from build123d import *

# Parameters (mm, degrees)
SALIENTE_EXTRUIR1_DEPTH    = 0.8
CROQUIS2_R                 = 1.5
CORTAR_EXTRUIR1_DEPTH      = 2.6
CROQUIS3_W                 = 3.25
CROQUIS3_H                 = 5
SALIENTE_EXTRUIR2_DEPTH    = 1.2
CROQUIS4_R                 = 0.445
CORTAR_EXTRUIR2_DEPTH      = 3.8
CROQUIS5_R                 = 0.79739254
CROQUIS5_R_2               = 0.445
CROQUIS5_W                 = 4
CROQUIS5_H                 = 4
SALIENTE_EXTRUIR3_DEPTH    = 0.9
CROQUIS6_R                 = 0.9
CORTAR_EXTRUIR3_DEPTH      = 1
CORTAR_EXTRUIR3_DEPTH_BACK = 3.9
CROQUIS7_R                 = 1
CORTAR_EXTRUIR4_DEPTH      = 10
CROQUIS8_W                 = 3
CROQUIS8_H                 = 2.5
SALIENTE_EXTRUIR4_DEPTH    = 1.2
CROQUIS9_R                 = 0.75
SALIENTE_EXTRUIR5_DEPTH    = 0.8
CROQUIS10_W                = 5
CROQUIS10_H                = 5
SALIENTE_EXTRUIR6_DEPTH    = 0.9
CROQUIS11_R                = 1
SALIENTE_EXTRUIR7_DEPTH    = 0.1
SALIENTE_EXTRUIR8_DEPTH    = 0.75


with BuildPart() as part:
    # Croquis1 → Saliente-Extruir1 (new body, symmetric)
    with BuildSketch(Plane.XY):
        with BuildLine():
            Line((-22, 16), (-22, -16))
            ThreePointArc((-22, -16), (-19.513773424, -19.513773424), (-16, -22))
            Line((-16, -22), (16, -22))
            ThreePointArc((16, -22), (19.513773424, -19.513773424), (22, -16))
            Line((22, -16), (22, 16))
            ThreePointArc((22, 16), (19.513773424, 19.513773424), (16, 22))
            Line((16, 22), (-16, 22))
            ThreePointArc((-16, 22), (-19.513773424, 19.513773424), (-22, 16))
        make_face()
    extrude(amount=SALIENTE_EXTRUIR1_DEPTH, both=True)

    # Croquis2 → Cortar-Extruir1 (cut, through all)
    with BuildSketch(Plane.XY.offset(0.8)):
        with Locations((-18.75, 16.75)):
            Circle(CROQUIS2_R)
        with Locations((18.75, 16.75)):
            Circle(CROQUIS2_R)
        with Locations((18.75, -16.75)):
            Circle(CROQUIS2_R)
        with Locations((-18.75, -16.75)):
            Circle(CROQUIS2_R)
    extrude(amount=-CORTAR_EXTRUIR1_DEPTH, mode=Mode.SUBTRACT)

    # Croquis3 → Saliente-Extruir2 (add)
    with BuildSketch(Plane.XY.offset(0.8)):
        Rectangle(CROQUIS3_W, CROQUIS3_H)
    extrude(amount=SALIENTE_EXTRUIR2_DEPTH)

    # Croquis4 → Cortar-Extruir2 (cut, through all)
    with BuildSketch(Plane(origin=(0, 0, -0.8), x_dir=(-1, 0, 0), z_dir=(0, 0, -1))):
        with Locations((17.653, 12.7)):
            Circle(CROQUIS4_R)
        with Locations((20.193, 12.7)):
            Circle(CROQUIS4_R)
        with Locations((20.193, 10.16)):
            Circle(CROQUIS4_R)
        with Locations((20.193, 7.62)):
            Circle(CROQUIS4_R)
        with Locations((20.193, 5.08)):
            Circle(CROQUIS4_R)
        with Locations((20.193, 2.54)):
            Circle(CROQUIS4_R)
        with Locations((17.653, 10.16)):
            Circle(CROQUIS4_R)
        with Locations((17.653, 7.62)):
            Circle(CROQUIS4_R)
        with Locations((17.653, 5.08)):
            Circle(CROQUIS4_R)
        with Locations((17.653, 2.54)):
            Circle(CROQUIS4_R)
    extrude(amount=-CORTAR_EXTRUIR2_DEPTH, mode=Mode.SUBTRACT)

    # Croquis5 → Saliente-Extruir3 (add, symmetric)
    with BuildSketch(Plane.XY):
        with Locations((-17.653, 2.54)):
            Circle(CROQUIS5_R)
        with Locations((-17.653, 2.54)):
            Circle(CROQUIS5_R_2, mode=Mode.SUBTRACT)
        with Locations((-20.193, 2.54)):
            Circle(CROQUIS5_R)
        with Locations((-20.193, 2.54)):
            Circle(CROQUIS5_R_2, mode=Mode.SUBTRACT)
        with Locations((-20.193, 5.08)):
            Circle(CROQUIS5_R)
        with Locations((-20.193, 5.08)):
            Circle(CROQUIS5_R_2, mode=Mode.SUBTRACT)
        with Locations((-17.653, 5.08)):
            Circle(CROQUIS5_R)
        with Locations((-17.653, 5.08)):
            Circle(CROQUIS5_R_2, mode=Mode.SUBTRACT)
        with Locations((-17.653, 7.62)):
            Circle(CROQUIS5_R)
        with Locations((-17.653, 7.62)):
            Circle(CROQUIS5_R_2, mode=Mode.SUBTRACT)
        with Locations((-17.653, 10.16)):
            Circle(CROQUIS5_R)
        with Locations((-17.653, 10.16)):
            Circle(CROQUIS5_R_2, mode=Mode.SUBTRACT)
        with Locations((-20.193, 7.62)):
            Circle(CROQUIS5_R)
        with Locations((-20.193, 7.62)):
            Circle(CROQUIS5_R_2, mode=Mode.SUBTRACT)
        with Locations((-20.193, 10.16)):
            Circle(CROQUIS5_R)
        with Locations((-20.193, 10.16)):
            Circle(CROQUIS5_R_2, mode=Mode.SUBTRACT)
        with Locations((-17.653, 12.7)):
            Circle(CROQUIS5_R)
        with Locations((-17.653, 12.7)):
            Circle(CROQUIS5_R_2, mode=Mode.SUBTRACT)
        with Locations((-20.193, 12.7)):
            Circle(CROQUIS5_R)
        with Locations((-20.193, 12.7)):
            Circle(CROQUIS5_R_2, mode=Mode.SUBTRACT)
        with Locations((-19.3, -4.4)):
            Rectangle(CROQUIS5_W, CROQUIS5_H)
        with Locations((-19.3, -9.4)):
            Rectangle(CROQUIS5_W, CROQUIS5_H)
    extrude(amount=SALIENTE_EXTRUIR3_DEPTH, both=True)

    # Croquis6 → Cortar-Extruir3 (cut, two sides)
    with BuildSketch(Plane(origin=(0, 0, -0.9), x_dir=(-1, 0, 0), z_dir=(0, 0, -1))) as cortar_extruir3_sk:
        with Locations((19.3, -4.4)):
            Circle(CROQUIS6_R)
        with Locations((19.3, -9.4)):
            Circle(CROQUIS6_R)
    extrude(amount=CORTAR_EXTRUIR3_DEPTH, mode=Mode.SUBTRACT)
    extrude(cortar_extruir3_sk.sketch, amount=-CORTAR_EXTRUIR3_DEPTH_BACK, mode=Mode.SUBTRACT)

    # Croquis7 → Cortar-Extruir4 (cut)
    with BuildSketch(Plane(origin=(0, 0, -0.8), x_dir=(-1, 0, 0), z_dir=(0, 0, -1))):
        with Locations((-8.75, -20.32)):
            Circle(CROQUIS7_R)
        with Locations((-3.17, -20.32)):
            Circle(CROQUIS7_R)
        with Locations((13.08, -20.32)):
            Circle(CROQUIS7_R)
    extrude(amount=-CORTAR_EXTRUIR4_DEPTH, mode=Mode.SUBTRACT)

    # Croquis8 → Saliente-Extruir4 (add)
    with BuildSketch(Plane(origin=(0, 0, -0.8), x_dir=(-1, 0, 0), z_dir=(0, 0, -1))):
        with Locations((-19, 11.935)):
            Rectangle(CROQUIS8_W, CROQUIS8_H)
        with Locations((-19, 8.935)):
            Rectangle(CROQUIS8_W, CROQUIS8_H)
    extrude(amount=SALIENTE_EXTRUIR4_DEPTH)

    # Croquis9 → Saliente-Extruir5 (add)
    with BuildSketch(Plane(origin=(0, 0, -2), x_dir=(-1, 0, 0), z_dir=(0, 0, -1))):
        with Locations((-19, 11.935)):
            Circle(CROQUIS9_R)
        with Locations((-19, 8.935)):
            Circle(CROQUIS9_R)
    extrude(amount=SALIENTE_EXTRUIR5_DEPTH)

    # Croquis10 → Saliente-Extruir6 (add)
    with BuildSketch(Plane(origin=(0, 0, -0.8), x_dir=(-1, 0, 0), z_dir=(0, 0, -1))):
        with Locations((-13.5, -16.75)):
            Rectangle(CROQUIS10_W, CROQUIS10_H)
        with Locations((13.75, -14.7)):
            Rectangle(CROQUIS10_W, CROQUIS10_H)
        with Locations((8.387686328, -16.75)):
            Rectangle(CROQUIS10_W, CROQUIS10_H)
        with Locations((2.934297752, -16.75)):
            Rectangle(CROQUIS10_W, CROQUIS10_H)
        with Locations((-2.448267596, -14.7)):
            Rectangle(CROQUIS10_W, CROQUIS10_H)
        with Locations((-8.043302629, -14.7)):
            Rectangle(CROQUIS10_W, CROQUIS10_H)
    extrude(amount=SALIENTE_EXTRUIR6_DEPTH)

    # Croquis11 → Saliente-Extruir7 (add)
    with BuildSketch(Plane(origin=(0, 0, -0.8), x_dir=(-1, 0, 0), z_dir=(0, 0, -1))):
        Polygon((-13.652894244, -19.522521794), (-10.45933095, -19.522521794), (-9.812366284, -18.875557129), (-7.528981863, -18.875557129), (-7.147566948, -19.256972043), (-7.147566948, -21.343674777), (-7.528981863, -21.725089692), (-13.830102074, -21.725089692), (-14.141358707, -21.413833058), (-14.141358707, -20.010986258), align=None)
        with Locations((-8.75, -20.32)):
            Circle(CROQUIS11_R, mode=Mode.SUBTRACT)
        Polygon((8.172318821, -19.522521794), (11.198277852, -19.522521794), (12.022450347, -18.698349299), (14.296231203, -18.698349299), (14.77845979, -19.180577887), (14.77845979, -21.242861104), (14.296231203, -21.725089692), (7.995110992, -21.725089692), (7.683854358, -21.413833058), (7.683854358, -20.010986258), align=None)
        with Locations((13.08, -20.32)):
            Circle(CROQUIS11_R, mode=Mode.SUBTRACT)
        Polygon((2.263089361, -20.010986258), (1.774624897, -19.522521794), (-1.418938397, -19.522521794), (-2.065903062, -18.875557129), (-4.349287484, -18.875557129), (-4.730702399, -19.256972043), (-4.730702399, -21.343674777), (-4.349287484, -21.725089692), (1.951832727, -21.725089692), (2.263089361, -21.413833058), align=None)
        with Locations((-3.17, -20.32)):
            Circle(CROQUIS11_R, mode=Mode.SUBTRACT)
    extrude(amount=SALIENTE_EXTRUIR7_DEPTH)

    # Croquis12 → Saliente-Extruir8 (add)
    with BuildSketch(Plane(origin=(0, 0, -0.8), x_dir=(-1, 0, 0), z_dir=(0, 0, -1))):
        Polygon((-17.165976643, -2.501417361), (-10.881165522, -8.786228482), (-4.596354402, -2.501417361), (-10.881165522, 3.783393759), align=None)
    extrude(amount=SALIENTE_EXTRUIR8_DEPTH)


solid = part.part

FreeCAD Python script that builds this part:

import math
import FreeCAD as App
import Part
import Sketcher
from FreeCAD import Vector

doc = App.newDocument("Part")
params = doc.addObject("Spreadsheet::Sheet", "Params")
for row, (alias, value) in enumerate([
    ("sketch1_width", "32 mm"),
    ("sketch1_radius", "12.75 mm"),
    ("pad1_length", "1.6 mm"),
    ("sketch2_diameter", "3 mm"),
    ("sketch3_height", "5 mm"),
    ("sketch3_width", "3.25 mm"),
    ("pad2_length", "1.2 mm"),
    ("sketch4_diameter", "0.89 mm"),
    ("sketch5_diameter", "0.89 mm"),
    ("sketch5_width", "4 mm"),
    ("pad3_length", "1.8 mm"),
    ("sketch6_diameter", "1.8 mm"),
    ("sketch7_diameter", "2 mm"),
    ("pocket4_length", "10 mm"),
    ("sketch8_width", "3 mm"),
    ("sketch8_height", "2.5 mm"),
    ("pad4_length", "1.2 mm"),
    ("sketch9_diameter", "1.5 mm"),
    ("pad5_length", "0.8 mm"),
    ("sketch10_width", "5 mm"),
    ("pad6_length", "0.9 mm"),
    ("sketch11_diameter", "2 mm"),
    ("pad7_length", "0.1 mm"),
    ("pad8_length", "0.75 mm"),
], start=1):
    params.set(f"A{row}", alias)
    params.set(f"B{row}", "=" + value)
    params.setAlias(f"B{row}", alias)

body = doc.addObject("PartDesign::Body", "Body")

sketch1 = body.newObject("Sketcher::SketchObject", "Sketch")
sketch1.AttachmentSupport = (doc.getObject("XY_Plane"), [""])
sketch1.MapMode = "FlatFace"
sketch1.addGeometry([
    Part.LineSegment(Vector(-22, 16, 0), Vector(-22, -16, 0)),
    Part.ArcOfCircle(Part.Circle(Vector(-10, -10, 0), Vector(0, 0, 1), 13), math.radians(-154), math.radians(-116)),
    Part.LineSegment(Vector(-16, -22, 0), Vector(16, -22, 0)),
    Part.ArcOfCircle(Part.Circle(Vector(10, -10, 0), Vector(0, 0, 1), 13), math.radians(-64), math.radians(-26)),
    Part.LineSegment(Vector(22, -16, 0), Vector(22, 16, 0)),
    Part.ArcOfCircle(Part.Circle(Vector(10, 10, 0), Vector(0, 0, 1), 13), math.radians(26), math.radians(64)),
    Part.LineSegment(Vector(16, 22, 0), Vector(-16, 22, 0)),
    Part.ArcOfCircle(Part.Circle(Vector(-10, 10, 0), Vector(0, 0, 1), 13), math.radians(116), math.radians(154)),
], False)
sketch1.addConstraint([
    Sketcher.Constraint("Coincident", 0, 2, 1, 1),
    Sketcher.Constraint("Coincident", 1, 2, 2, 1),
    Sketcher.Constraint("Coincident", 2, 2, 3, 1),
    Sketcher.Constraint("Coincident", 3, 2, 4, 1),
    Sketcher.Constraint("Coincident", 4, 2, 5, 1),
    Sketcher.Constraint("Coincident", 5, 2, 6, 1),
    Sketcher.Constraint("Coincident", 6, 2, 7, 1),
    Sketcher.Constraint("Coincident", 7, 2, 0, 1),
    Sketcher.Constraint("Vertical", 0),
    Sketcher.Constraint("Horizontal", 2),
    Sketcher.Constraint("Vertical", 4),
    Sketcher.Constraint("Horizontal", 6),
    Sketcher.Constraint("Equal", 1, 3),
    Sketcher.Constraint("Equal", 3, 5),
    Sketcher.Constraint("Equal", 5, 7),
    Sketcher.Constraint("Symmetric", 1, 3, 5, 3, -1, 1),
    Sketcher.Constraint("Symmetric", 3, 3, 7, 3, -1, 1),
    Sketcher.Constraint("Symmetric", 1, 3, 3, 3, -2),
    Sketcher.Constraint("Horizontal", 0, 2, 3, 2),
    Sketcher.Constraint("Vertical", 2, 2, 5, 2),
    Sketcher.Constraint("Equal", 6, 0),
    Sketcher.Constraint("DistanceX", 2, 1, 2, 2, 32.0),
    Sketcher.Constraint("Radius", 1, 12.75),
    Sketcher.Constraint("DistanceX", 0, 2, -1, 1, 22.0),
    Sketcher.Constraint("DistanceY", 1, 2, -1, 1, 22.0),
])
sketch1.setExpression("Constraints[21]", "Params.sketch1_width")
sketch1.setExpression("Constraints[22]", "Params.sketch1_radius")
pad1 = body.newObject("PartDesign::Pad", "Pad")
pad1.Profile = sketch1
pad1.setExpression("Length", "Params.pad1_length")
pad1.Midplane = True

sketch2 = body.newObject("Sketcher::SketchObject", "Sketch001")
sketch2.AttachmentSupport = (doc.getObject("XY_Plane"), [""])
sketch2.MapMode = "FlatFace"
sketch2.AttachmentOffset = App.Placement(Vector(0, 0, 0.8), App.Rotation())
sketch2.addGeometry([
    Part.Circle(Vector(-18.8, 16.8, 0), Vector(0, 0, 1), 1.5),
    Part.Circle(Vector(18.8, 16.8, 0), Vector(0, 0, 1), 1.5),
    Part.Circle(Vector(18.8, -16.8, 0), Vector(0, 0, 1), 1.5),
    Part.Circle(Vector(-18.8, -16.8, 0), Vector(0, 0, 1), 1.5),
], False)
sketch2.addConstraint([
    Sketcher.Constraint("Equal", 0, 1),
    Sketcher.Constraint("Equal", 1, 2),
    Sketcher.Constraint("Equal", 2, 3),
    Sketcher.Constraint("Symmetric", 0, 3, 2, 3, -1, 1),
    Sketcher.Constraint("Symmetric", 1, 3, 3, 3, -1, 1),
    Sketcher.Constraint("Symmetric", 0, 3, 1, 3, -2),
    Sketcher.Constraint("Diameter", 0, 3.0),
    Sketcher.Constraint("DistanceX", 0, 3, 1, 3, 37.5),
    Sketcher.Constraint("DistanceY", 2, 3, 1, 3, 33.5),
])
sketch2.setExpression("Constraints[6]", "Params.sketch2_diameter")
pocket1 = body.newObject("PartDesign::Pocket", "Pocket")
pocket1.Profile = sketch2
pocket1.Type = "ThroughAll"

sketch3 = body.newObject("Sketcher::SketchObject", "Sketch002")
sketch3.AttachmentSupport = (doc.getObject("XY_Plane"), [""])
sketch3.MapMode = "FlatFace"
sketch3.AttachmentOffset = App.Placement(Vector(0, 0, 0.8), App.Rotation())
sketch3.addGeometry([
    Part.LineSegment(Vector(-1.6, 2.5, 0), Vector(-1.6, -2.5, 0)),
    Part.LineSegment(Vector(-1.6, -2.5, 0), Vector(1.6, -2.5, 0)),
    Part.LineSegment(Vector(1.6, -2.5, 0), Vector(1.6, 2.5, 0)),
    Part.LineSegment(Vector(1.6, 2.5, 0), Vector(-1.6, 2.5, 0)),
], False)
sketch3.addConstraint([
    Sketcher.Constraint("Coincident", 0, 2, 1, 1),
    Sketcher.Constraint("Coincident", 1, 2, 2, 1),
    Sketcher.Constraint("Coincident", 2, 2, 3, 1),
    Sketcher.Constraint("Coincident", 3, 2, 0, 1),
    Sketcher.Constraint("Vertical", 0),
    Sketcher.Constraint("Horizontal", 1),
    Sketcher.Constraint("Vertical", 2),
    Sketcher.Constraint("Horizontal", 3),
    Sketcher.Constraint("Symmetric", 0, 2, 2, 2, -1, 1),
    Sketcher.Constraint("DistanceY", 0, 2, 0, 1, 5.0),
    Sketcher.Constraint("DistanceX", 1, 1, 1, 2, 3.25),
])
sketch3.setExpression("Constraints[9]", "Params.sketch3_height")
sketch3.setExpression("Constraints[10]", "Params.sketch3_width")
pad2 = body.newObject("PartDesign::Pad", "Pad001")
pad2.Profile = sketch3
pad2.setExpression("Length", "Params.pad2_length")

sketch4 = body.newObject("Sketcher::SketchObject", "Sketch003")
sketch4.AttachmentSupport = (doc.getObject("XY_Plane"), [""])
sketch4.MapMode = "FlatFace"
sketch4.AttachmentOffset = App.Placement(Vector(0, 0, -0.8), App.Rotation())
sketch4.addGeometry([
    Part.Circle(Vector(-17.65, 12.7, 0), Vector(0, 0, 1), 0.45),
    Part.Circle(Vector(-20.19, 12.7, 0), Vector(0, 0, 1), 0.45),
    Part.Circle(Vector(-20.19, 10.16, 0), Vector(0, 0, 1), 0.45),
    Part.Circle(Vector(-20.19, 7.62, 0), Vector(0, 0, 1), 0.45),
    Part.Circle(Vector(-20.19, 5.08, 0), Vector(0, 0, 1), 0.45),
    Part.Circle(Vector(-20.19, 2.54, 0), Vector(0, 0, 1), 0.45),
    Part.Circle(Vector(-17.65, 10.16, 0), Vector(0, 0, 1), 0.45),
    Part.Circle(Vector(-17.65, 7.62, 0), Vector(0, 0, 1), 0.45),
    Part.Circle(Vector(-17.65, 5.08, 0), Vector(0, 0, 1), 0.45),
    Part.Circle(Vector(-17.65, 2.54, 0), Vector(0, 0, 1), 0.45),
], False)
sketch4.addConstraint([
    Sketcher.Constraint("Equal", 0, 1),
    Sketcher.Constraint("Equal", 1, 2),
    Sketcher.Constraint("Equal", 2, 3),
    Sketcher.Constraint("Equal", 3, 4),
    Sketcher.Constraint("Equal", 4, 5),
    Sketcher.Constraint("Equal", 5, 6),
    Sketcher.Constraint("Equal", 6, 7),
    Sketcher.Constraint("Equal", 7, 8),
    Sketcher.Constraint("Equal", 8, 9),
    Sketcher.Constraint("Horizontal", 0, 3, 1, 3),
    Sketcher.Constraint("Horizontal", 2, 3, 6, 3),
    Sketcher.Constraint("Horizontal", 3, 3, 7, 3),
    Sketcher.Constraint("Horizontal", 4, 3, 8, 3),
    Sketcher.Constraint("Horizontal", 5, 3, 9, 3),
    Sketcher.Constraint("Vertical", 1, 3, 2, 3),
    Sketcher.Constraint("Vertical", 2, 3, 3, 3),
    Sketcher.Constraint("Vertical", 3, 3, 4, 3),
    Sketcher.Constraint("Vertical", 4, 3, 5, 3),
    Sketcher.Constraint("Vertical", 0, 3, 6, 3),
    Sketcher.Constraint("Vertical", 6, 3, 7, 3),
    Sketcher.Constraint("Vertical", 7, 3, 8, 3),
    Sketcher.Constraint("Vertical", 8, 3, 9, 3),
    Sketcher.Constraint("Diameter", 0, 0.89),
    Sketcher.Constraint("DistanceY", -1, 1, 0, 3, 12.7),
    Sketcher.Constraint("DistanceY", -1, 1, 2, 3, 10.16),
    Sketcher.Constraint("DistanceY", -1, 1, 3, 3, 7.62),
    Sketcher.Constraint("DistanceY", -1, 1, 4, 3, 5.08),
    Sketcher.Constraint("DistanceY", -1, 1, 5, 3, 2.54),
    Sketcher.Constraint("DistanceX", 1, 3, 0, 3, 2.54),
    Sketcher.Constraint("DistanceX", 0, 3, -1, 1, 17.653),
])
sketch4.setExpression("Constraints[22]", "Params.sketch4_diameter")
pocket2 = body.newObject("PartDesign::Pocket", "Pocket001")
pocket2.Profile = sketch4
pocket2.Type = "ThroughAll"
pocket2.Reversed = True

sketch5 = body.newObject("Sketcher::SketchObject", "Sketch004")
sketch5.AttachmentSupport = (doc.getObject("XY_Plane"), [""])
sketch5.MapMode = "FlatFace"
sketch5.addGeometry([
    Part.Circle(Vector(-17.65, 2.54, 0), Vector(0, 0, 1), 0.8),
    Part.Circle(Vector(-17.65, 2.54, 0), Vector(0, 0, 1), 0.45),
    Part.Circle(Vector(-20.19, 2.54, 0), Vector(0, 0, 1), 0.8),
    Part.Circle(Vector(-20.19, 2.54, 0), Vector(0, 0, 1), 0.45),
    Part.Circle(Vector(-20.19, 5.08, 0), Vector(0, 0, 1), 0.8),
    Part.Circle(Vector(-20.19, 5.08, 0), Vector(0, 0, 1), 0.45),
    Part.Circle(Vector(-17.65, 5.08, 0), Vector(0, 0, 1), 0.8),
    Part.Circle(Vector(-17.65, 5.08, 0), Vector(0, 0, 1), 0.45),
    Part.Circle(Vector(-17.65, 7.62, 0), Vector(0, 0, 1), 0.8),
    Part.Circle(Vector(-17.65, 7.62, 0), Vector(0, 0, 1), 0.45),
    Part.Circle(Vector(-17.65, 10.16, 0), Vector(0, 0, 1), 0.8),
    Part.Circle(Vector(-17.65, 10.16, 0), Vector(0, 0, 1), 0.45),
    Part.Circle(Vector(-20.19, 7.62, 0), Vector(0, 0, 1), 0.8),
    Part.Circle(Vector(-20.19, 7.62, 0), Vector(0, 0, 1), 0.45),
    Part.Circle(Vector(-20.19, 10.16, 0), Vector(0, 0, 1), 0.8),
    Part.Circle(Vector(-20.19, 10.16, 0), Vector(0, 0, 1), 0.45),
    Part.Circle(Vector(-17.65, 12.7, 0), Vector(0, 0, 1), 0.8),
    Part.Circle(Vector(-17.65, 12.7, 0), Vector(0, 0, 1), 0.45),
    Part.Circle(Vector(-20.19, 12.7, 0), Vector(0, 0, 1), 0.8),
    Part.Circle(Vector(-20.19, 12.7, 0), Vector(0, 0, 1), 0.45),
    Part.LineSegment(Vector(-21.3, -2.4, 0), Vector(-21.3, -6.4, 0)),
    Part.LineSegment(Vector(-21.3, -6.4, 0), Vector(-17.3, -6.4, 0)),
    Part.LineSegment(Vector(-17.3, -6.4, 0), Vector(-17.3, -2.4, 0)),
    Part.LineSegment(Vector(-17.3, -2.4, 0), Vector(-21.3, -2.4, 0)),
    Part.LineSegment(Vector(-21.3, -7.4, 0), Vector(-21.3, -11.4, 0)),
    Part.LineSegment(Vector(-21.3, -11.4, 0), Vector(-17.3, -11.4, 0)),
    Part.LineSegment(Vector(-17.3, -11.4, 0), Vector(-17.3, -7.4, 0)),
    Part.LineSegment(Vector(-17.3, -7.4, 0), Vector(-21.3, -7.4, 0)),
], False)
sketch5.addConstraint([
    Sketcher.Constraint("Coincident", 20, 2, 21, 1),
    Sketcher.Constraint("Coincident", 21, 2, 22, 1),
    Sketcher.Constraint("Coincident", 22, 2, 23, 1),
    Sketcher.Constraint("Coincident", 23, 2, 20, 1),
    Sketcher.Constraint("Coincident", 24, 2, 25, 1),
    Sketcher.Constraint("Coincident", 25, 2, 26, 1),
    Sketcher.Constraint("Coincident", 26, 2, 27, 1),
    Sketcher.Constraint("Coincident", 27, 2, 24, 1),
    Sketcher.Constraint("Vertical", 20),
    Sketcher.Constraint("Horizontal", 21),
    Sketcher.Constraint("Vertical", 22),
    Sketcher.Constraint("Horizontal", 23),
    Sketcher.Constraint("Vertical", 24),
    Sketcher.Constraint("Horizontal", 25),
    Sketcher.Constraint("Vertical", 26),
    Sketcher.Constraint("Horizontal", 27),
    Sketcher.Constraint("Coincident", 1, 3, 0, 3),
    Sketcher.Constraint("Coincident", 3, 3, 2, 3),
    Sketcher.Constraint("Coincident", 5, 3, 4, 3),
    Sketcher.Constraint("Coincident", 7, 3, 6, 3),
    Sketcher.Constraint("Coincident", 9, 3, 8, 3),
    Sketcher.Constraint("Coincident", 11, 3, 10, 3),
    Sketcher.Constraint("Coincident", 13, 3, 12, 3),
    Sketcher.Constraint("Coincident", 15, 3, 14, 3),
    Sketcher.Constraint("Coincident", 17, 3, 16, 3),
    Sketcher.Constraint("Coincident", 19, 3, 18, 3),
    Sketcher.Constraint("Equal", 0, 2),
    Sketcher.Constraint("Equal", 1, 3),
    Sketcher.Constraint("Equal", 2, 4),
    Sketcher.Constraint("Equal", 3, 5),
    Sketcher.Constraint("Equal", 4, 6),
    Sketcher.Constraint("Equal", 5, 7),
    Sketcher.Constraint("Equal", 6, 8),
    Sketcher.Constraint("Equal", 7, 9),
    Sketcher.Constraint("Equal", 8, 10),
    Sketcher.Constraint("Equal", 9, 11),
    Sketcher.Constraint("Equal", 10, 12),
    Sketcher.Constraint("Equal", 11, 13),
    Sketcher.Constraint("Equal", 12, 14),
    Sketcher.Constraint("Equal", 13, 15),
    Sketcher.Constraint("Equal", 14, 16),
    Sketcher.Constraint("Equal", 15, 17),
    Sketcher.Constraint("Equal", 16, 18),
    Sketcher.Constraint("Equal", 17, 19),
    Sketcher.Constraint("Horizontal", 1, 3, 2, 3),
    Sketcher.Constraint("Horizontal", 5, 3, 6, 3),
    Sketcher.Constraint("Horizontal", 9, 3, 12, 3),
    Sketcher.Constraint("Horizontal", 11, 3, 14, 3),
    Sketcher.Constraint("Horizontal", 17, 3, 18, 3),
    Sketcher.Constraint("Vertical", 3, 3, 4, 3),
    Sketcher.Constraint("Vertical", 1, 3, 6, 3),
    Sketcher.Constraint("Vertical", 7, 3, 8, 3),
    Sketcher.Constraint("Vertical", 9, 3, 10, 3),
    Sketcher.Constraint("Vertical", 5, 3, 12, 3),
    Sketcher.Constraint("Vertical", 13, 3, 14, 3),
    Sketcher.Constraint("Vertical", 11, 3, 16, 3),
    Sketcher.Constraint("Vertical", 15, 3, 18, 3),
    Sketcher.Constraint("Vertical", 23, 2, 24, 2),
    Sketcher.Constraint("Vertical", 22, 2, 25, 2),
    Sketcher.Constraint("Equal", 27, 20),
    Sketcher.Constraint("Equal", 22, 24),
    Sketcher.Constraint("Diameter", 1, 0.89),
    Sketcher.Constraint("DistanceX", 21, 1, 21, 2, 4.0),
    Sketcher.Constraint("DistanceY", 24, 2, 20, 2, 5.0),
    Sketcher.Constraint("DistanceY", -1, 1, 16, 3, 12.7),
    Sketcher.Constraint("DistanceX", 20, 2, -1, 1, 21.3),
    Sketcher.Constraint("DistanceY", 20, 2, -1, 1, 6.4),
    Sketcher.Constraint("DistanceY", -1, 1, 0, 3, 2.54),
    Sketcher.Constraint("DistanceY", -1, 1, 4, 3, 5.08),
    Sketcher.Constraint("DistanceY", -1, 1, 8, 3, 7.62),
    Sketcher.Constraint("DistanceY", -1, 1, 10, 3, 10.16),
    Sketcher.Constraint("DistanceX", 2, 3, 0, 3, 2.54),
    Sketcher.Constraint("Diameter", 0, 1.594785),
    Sketcher.Constraint("DistanceX", 0, 3, -1, 1, 17.653),
])
sketch5.setExpression("Constraints[61]", "Params.sketch5_diameter")
sketch5.setExpression("Constraints[62]", "Params.sketch5_width")
pad3 = body.newObject("PartDesign::Pad", "Pad002")
pad3.Profile = sketch5
pad3.setExpression("Length", "Params.pad3_length")
pad3.Midplane = True

sketch6 = body.newObject("Sketcher::SketchObject", "Sketch005")
sketch6.AttachmentSupport = (doc.getObject("XY_Plane"), [""])
sketch6.MapMode = "FlatFace"
sketch6.AttachmentOffset = App.Placement(Vector(0, 0, -0.9), App.Rotation())
sketch6.addGeometry([
    Part.Circle(Vector(-19.3, -4.4, 0), Vector(0, 0, 1), 0.9),
    Part.Circle(Vector(-19.3, -9.4, 0), Vector(0, 0, 1), 0.9),
], False)
sketch6.addConstraint([
    Sketcher.Constraint("Equal", 0, 1),
    Sketcher.Constraint("Vertical", 0, 3, 1, 3),
    Sketcher.Constraint("Diameter", 0, 1.8),
    Sketcher.Constraint("DistanceY", 1, 3, 0, 3, 5.0),
    Sketcher.Constraint("DistanceX", 0, 3, -1, 1, 19.3),
    Sketcher.Constraint("DistanceY", 0, 3, -1, 1, 4.4),
])
sketch6.setExpression("Constraints[2]", "Params.sketch6_diameter")
pocket3 = body.newObject("PartDesign::Pocket", "Pocket002")
pocket3.Profile = sketch6
pocket3.Type = "ThroughAll"
pocket3.Midplane = True

sketch7 = body.newObject("Sketcher::SketchObject", "Sketch006")
sketch7.AttachmentSupport = (doc.getObject("XY_Plane"), [""])
sketch7.MapMode = "FlatFace"
sketch7.AttachmentOffset = App.Placement(Vector(0, 0, -0.8), App.Rotation())
sketch7.addGeometry([
    Part.Circle(Vector(8.8, -20.3, 0), Vector(0, 0, 1), 1),
    Part.Circle(Vector(3.2, -20.3, 0), Vector(0, 0, 1), 1),
    Part.Circle(Vector(-13.1, -20.3, 0), Vector(0, 0, 1), 1),
], False)
sketch7.addConstraint([
    Sketcher.Constraint("Equal", 0, 1),
    Sketcher.Constraint("Equal", 1, 2),
    Sketcher.Constraint("Horizontal", 0, 3, 1, 3),
    Sketcher.Constraint("Horizontal", 1, 3, 2, 3),
    Sketcher.Constraint("Diameter", 0, 2.0),
    Sketcher.Constraint("DistanceX", -1, 1, 0, 3, 8.75),
    Sketcher.Constraint("DistanceY", 0, 3, -1, 1, 20.32),
    Sketcher.Constraint("DistanceX", -1, 1, 1, 3, 3.17),
    Sketcher.Constraint("DistanceX", 2, 3, -1, 1, 13.08),
])
sketch7.setExpression("Constraints[4]", "Params.sketch7_diameter")
pocket4 = body.newObject("PartDesign::Pocket", "Pocket003")
pocket4.Profile = sketch7
pocket4.setExpression("Length", "Params.pocket4_length")
pocket4.Reversed = True

sketch8 = body.newObject("Sketcher::SketchObject", "Sketch007")
sketch8.AttachmentSupport = (doc.getObject("XY_Plane"), [""])
sketch8.MapMode = "FlatFace"
sketch8.AttachmentOffset = App.Placement(Vector(0, 0, -0.8), App.Rotation())
sketch8.addGeometry([
    Part.LineSegment(Vector(20.5, 13.2, 0), Vector(20.5, 10.7, 0)),
    Part.LineSegment(Vector(20.5, 10.7, 0), Vector(17.5, 10.7, 0)),
    Part.LineSegment(Vector(17.5, 10.7, 0), Vector(17.5, 13.2, 0)),
    Part.LineSegment(Vector(17.5, 13.2, 0), Vector(20.5, 13.2, 0)),
    Part.LineSegment(Vector(20.5, 10.2, 0), Vector(20.5, 7.7, 0)),
    Part.LineSegment(Vector(20.5, 7.7, 0), Vector(17.5, 7.7, 0)),
    Part.LineSegment(Vector(17.5, 7.7, 0), Vector(17.5, 10.2, 0)),
    Part.LineSegment(Vector(17.5, 10.2, 0), Vector(20.5, 10.2, 0)),
], False)
sketch8.addConstraint([
    Sketcher.Constraint("Coincident", 0, 2, 1, 1),
    Sketcher.Constraint("Coincident", 1, 2, 2, 1),
    Sketcher.Constraint("Coincident", 2, 2, 3, 1),
    Sketcher.Constraint("Coincident", 3, 2, 0, 1),
    Sketcher.Constraint("Coincident", 4, 2, 5, 1),
    Sketcher.Constraint("Coincident", 5, 2, 6, 1),
    Sketcher.Constraint("Coincident", 6, 2, 7, 1),
    Sketcher.Constraint("Coincident", 7, 2, 4, 1),
    Sketcher.Constraint("Vertical", 0),
    Sketcher.Constraint("Horizontal", 1),
    Sketcher.Constraint("Vertical", 2),
    Sketcher.Constraint("Horizontal", 3),
    Sketcher.Constraint("Vertical", 4),
    Sketcher.Constraint("Horizontal", 5),
    Sketcher.Constraint("Vertical", 6),
    Sketcher.Constraint("Horizontal", 7),
    Sketcher.Constraint("Vertical", 3, 2, 4, 2),
    Sketcher.Constraint("Vertical", 2, 2, 5, 2),
    Sketcher.Constraint("Equal", 2, 4),
    Sketcher.Constraint("DistanceX", 1, 2, 1, 1, 3.0),
    Sketcher.Constraint("DistanceY", 0, 2, 0, 1, 2.5),
    Sketcher.Constraint("DistanceY", 4, 2, 0, 2, 3.0),
    Sketcher.Constraint("DistanceX", -1, 1, 0, 2, 20.5),
    Sketcher.Constraint("DistanceY", -1, 1, 0, 2, 10.685),
])
sketch8.setExpression("Constraints[19]", "Params.sketch8_width")
sketch8.setExpression("Constraints[20]", "Params.sketch8_height")
pad4 = body.newObject("PartDesign::Pad", "Pad003")
pad4.Profile = sketch8
pad4.setExpression("Length", "Params.pad4_length")
pad4.Reversed = True

sketch9 = body.newObject("Sketcher::SketchObject", "Sketch008")
sketch9.AttachmentSupport = (doc.getObject("XY_Plane"), [""])
sketch9.MapMode = "FlatFace"
sketch9.AttachmentOffset = App.Placement(Vector(0, 0, -2), App.Rotation())
sketch9.addGeometry([
    Part.Circle(Vector(19, 11.9, 0), Vector(0, 0, 1), 0.8),
    Part.Circle(Vector(19, 8.9, 0), Vector(0, 0, 1), 0.8),
], False)
sketch9.addConstraint([
    Sketcher.Constraint("Equal", 0, 1),
    Sketcher.Constraint("Vertical", 0, 3, 1, 3),
    Sketcher.Constraint("Diameter", 0, 1.5),
    Sketcher.Constraint("DistanceX", -1, 1, 0, 3, 19.0),
    Sketcher.Constraint("DistanceY", 1, 3, 0, 3, 3.0),
    Sketcher.Constraint("DistanceY", -1, 1, 0, 3, 11.935),
])
sketch9.setExpression("Constraints[2]", "Params.sketch9_diameter")
pad5 = body.newObject("PartDesign::Pad", "Pad004")
pad5.Profile = sketch9
pad5.setExpression("Length", "Params.pad5_length")
pad5.Reversed = True

sketch10 = body.newObject("Sketcher::SketchObject", "Sketch009")
sketch10.AttachmentSupport = (doc.getObject("XY_Plane"), [""])
sketch10.MapMode = "FlatFace"
sketch10.AttachmentOffset = App.Placement(Vector(0, 0, -0.8), App.Rotation())
sketch10.addGeometry([
    Part.LineSegment(Vector(16, -14.2, 0), Vector(16, -19.2, 0)),
    Part.LineSegment(Vector(16, -19.2, 0), Vector(11, -19.2, 0)),
    Part.LineSegment(Vector(11, -19.2, 0), Vector(11, -14.2, 0)),
    Part.LineSegment(Vector(11, -14.2, 0), Vector(16, -14.2, 0)),
    Part.LineSegment(Vector(-11.2, -12.2, 0), Vector(-11.2, -17.2, 0)),
    Part.LineSegment(Vector(-11.2, -17.2, 0), Vector(-16.2, -17.2, 0)),
    Part.LineSegment(Vector(-16.2, -17.2, 0), Vector(-16.2, -12.2, 0)),
    Part.LineSegment(Vector(-16.2, -12.2, 0), Vector(-11.2, -12.2, 0)),
    Part.LineSegment(Vector(-5.9, -14.2, 0), Vector(-5.9, -19.2, 0)),
    Part.LineSegment(Vector(-5.9, -19.2, 0), Vector(-10.9, -19.2, 0)),
    Part.LineSegment(Vector(-10.9, -19.2, 0), Vector(-10.9, -14.2, 0)),
    Part.LineSegment(Vector(-10.9, -14.2, 0), Vector(-5.9, -14.2, 0)),
    Part.LineSegment(Vector(-0.4, -14.2, 0), Vector(-0.4, -19.2, 0)),
    Part.LineSegment(Vector(-0.4, -19.2, 0), Vector(-5.4, -19.2, 0)),
    Part.LineSegment(Vector(-5.4, -19.2, 0), Vector(-5.4, -14.2, 0)),
    Part.LineSegment(Vector(-5.4, -14.2, 0), Vector(-0.4, -14.2, 0)),
    Part.LineSegment(Vector(4.9, -12.2, 0), Vector(4.9, -17.2, 0)),
    Part.LineSegment(Vector(4.9, -17.2, 0), Vector(-0.1, -17.2, 0)),
    Part.LineSegment(Vector(-0.1, -17.2, 0), Vector(-0.1, -12.2, 0)),
    Part.LineSegment(Vector(-0.1, -12.2, 0), Vector(4.9, -12.2, 0)),
    Part.LineSegment(Vector(10.5, -12.2, 0), Vector(10.5, -17.2, 0)),
    Part.LineSegment(Vector(10.5, -17.2, 0), Vector(5.5, -17.2, 0)),
    Part.LineSegment(Vector(5.5, -17.2, 0), Vector(5.5, -12.2, 0)),
    Part.LineSegment(Vector(5.5, -12.2, 0), Vector(10.5, -12.2, 0)),
], False)
sketch10.addConstraint([
    Sketcher.Constraint("Coincident", 0, 2, 1, 1),
    Sketcher.Constraint("Coincident", 1, 2, 2, 1),
    Sketcher.Constraint("Coincident", 2, 2, 3, 1),
    Sketcher.Constraint("Coincident", 3, 2, 0, 1),
    Sketcher.Constraint("Coincident", 4, 2, 5, 1),
    Sketcher.Constraint("Coincident", 5, 2, 6, 1),
    Sketcher.Constraint("Coincident", 6, 2, 7, 1),
    Sketcher.Constraint("Coincident", 7, 2, 4, 1),
    Sketcher.Constraint("Coincident", 8, 2, 9, 1),
    Sketcher.Constraint("Coincident", 9, 2, 10, 1),
    Sketcher.Constraint("Coincident", 10, 2, 11, 1),
    Sketcher.Constraint("Coincident", 11, 2, 8, 1),
    Sketcher.Constraint("Coincident", 12, 2, 13, 1),
    Sketcher.Constraint("Coincident", 13, 2, 14, 1),
    Sketcher.Constraint("Coincident", 14, 2, 15, 1),
    Sketcher.Constraint("Coincident", 15, 2, 12, 1),
    Sketcher.Constraint("Coincident", 16, 2, 17, 1),
    Sketcher.Constraint("Coincident", 17, 2, 18, 1),
    Sketcher.Constraint("Coincident", 18, 2, 19, 1),
    Sketcher.Constraint("Coincident", 19, 2, 16, 1),
    Sketcher.Constraint("Coincident", 20, 2, 21, 1),
    Sketcher.Constraint("Coincident", 21, 2, 22, 1),
    Sketcher.Constraint("Coincident", 22, 2, 23, 1),
    Sketcher.Constraint("Coincident", 23, 2, 20, 1),
    Sketcher.Constraint("Vertical", 0),
    Sketcher.Constraint("Horizontal", 1),
    Sketcher.Constraint("Vertical", 2),
    Sketcher.Constraint("Horizontal", 3),
    Sketcher.Constraint("Vertical", 4),
    Sketcher.Constraint("Horizontal", 5),
    Sketcher.Constraint("Vertical", 6),
    Sketcher.Constraint("Horizontal", 7),
    Sketcher.Constraint("Vertical", 8),
    Sketcher.Constraint("Horizontal", 9),
    Sketcher.Constraint("Vertical", 10),
    Sketcher.Constraint("Horizontal", 11),
    Sketcher.Constraint("Vertical", 12),
    Sketcher.Constraint("Horizontal", 13),
    Sketcher.Constraint("Vertical", 14),
    Sketcher.Constraint("Horizontal", 15),
    Sketcher.Constraint("Vertical", 16),
    Sketcher.Constraint("Horizontal", 17),
    Sketcher.Constraint("Vertical", 18),
    Sketcher.Constraint("Horizontal", 19),
    Sketcher.Constraint("Vertical", 20),
    Sketcher.Constraint("Horizontal", 21),
    Sketcher.Constraint("Vertical", 22),
    Sketcher.Constraint("Horizontal", 23),
    Sketcher.Constraint("Horizontal", 1, 2, 8, 2),
    Sketcher.Constraint("Horizontal", 3, 2, 10, 2),
    Sketcher.Constraint("Horizontal", 9, 2, 12, 2),
    Sketcher.Constraint("Horizontal", 11, 2, 14, 2),
    Sketcher.Constraint("Horizontal", 5, 2, 16, 2),
    Sketcher.Constraint("Horizontal", 7, 2, 18, 2),
    Sketcher.Constraint("Horizontal", 17, 2, 20, 2),
    Sketcher.Constraint("Horizontal", 19, 2, 22, 2),
    Sketcher.Constraint("Equal", 3, 5),
    Sketcher.Constraint("Equal", 7, 9),
    Sketcher.Constraint("Equal", 11, 13),
    Sketcher.Constraint("Equal", 15, 17),
    Sketcher.Constraint("Equal", 19, 21),
    Sketcher.Constraint("Equal", 23, 0),
    Sketcher.Constraint("Equal", 2, 4),
    Sketcher.Constraint("DistanceX", 1, 2, 1, 1, 5.0),
    Sketcher.Constraint("DistanceX", -1, 1, 0, 2, 16.0),
    Sketcher.Constraint("DistanceY", 4, 2, -1, 1, 17.2),
    Sketcher.Constraint("DistanceY", 0, 2, -1, 1, 19.25),
    Sketcher.Constraint("DistanceX", 4, 2, -1, 1, 11.25),
    Sketcher.Constraint("DistanceX", 8, 2, 12, 2, 5.453389),
    Sketcher.Constraint("DistanceX", 8, 2, -1, 1, 5.887686),
    Sketcher.Constraint("DistanceX", -1, 1, 16, 2, 4.948268),
    Sketcher.Constraint("DistanceX", -1, 1, 20, 2, 10.543303),
])
sketch10.setExpression("Constraints[63]", "Params.sketch10_width")
pad6 = body.newObject("PartDesign::Pad", "Pad005")
pad6.Profile = sketch10
pad6.setExpression("Length", "Params.pad6_length")
pad6.Reversed = True

sketch11 = body.newObject("Sketcher::SketchObject", "Sketch010")
sketch11.AttachmentSupport = (doc.getObject("XY_Plane"), [""])
sketch11.MapMode = "FlatFace"
sketch11.AttachmentOffset = App.Placement(Vector(0, 0, -0.8), App.Rotation())
sketch11.addGeometry([
    Part.LineSegment(Vector(10.46, -19.52, 0), Vector(13.65, -19.52, 0)),
    Part.LineSegment(Vector(13.65, -19.52, 0), Vector(14.14, -20.01, 0)),
    Part.LineSegment(Vector(14.14, -20.01, 0), Vector(14.14, -21.41, 0)),
    Part.LineSegment(Vector(14.14, -21.41, 0), Vector(13.83, -21.73, 0)),
    Part.LineSegment(Vector(13.83, -21.73, 0), Vector(7.53, -21.73, 0)),
    Part.LineSegment(Vector(7.53, -21.73, 0), Vector(7.15, -21.34, 0)),
    Part.LineSegment(Vector(7.15, -21.34, 0), Vector(7.15, -19.26, 0)),
    Part.LineSegment(Vector(7.15, -19.26, 0), Vector(7.53, -18.88, 0)),
    Part.LineSegment(Vector(7.53, -18.88, 0), Vector(9.81, -18.88, 0)),
    Part.LineSegment(Vector(9.81, -18.88, 0), Vector(10.46, -19.52, 0)),
    Part.Circle(Vector(8.75, -20.32, 0), Vector(0, 0, 1), 1),
    Part.LineSegment(Vector(-11.2, -19.52, 0), Vector(-8.17, -19.52, 0)),
    Part.LineSegment(Vector(-8.17, -19.52, 0), Vector(-7.68, -20.01, 0)),
    Part.LineSegment(Vector(-7.68, -20.01, 0), Vector(-7.68, -21.41, 0)),
    Part.LineSegment(Vector(-7.68, -21.41, 0), Vector(-8, -21.73, 0)),
    Part.LineSegment(Vector(-8, -21.73, 0), Vector(-14.3, -21.73, 0)),
    Part.LineSegment(Vector(-14.3, -21.73, 0), Vector(-14.78, -21.24, 0)),
    Part.LineSegment(Vector(-14.78, -21.24, 0), Vector(-14.78, -19.18, 0)),
    Part.LineSegment(Vector(-14.78, -19.18, 0), Vector(-14.3, -18.7, 0)),
    Part.LineSegment(Vector(-14.3, -18.7, 0), Vector(-12.02, -18.7, 0)),
    Part.LineSegment(Vector(-12.02, -18.7, 0), Vector(-11.2, -19.52, 0)),
    Part.Circle(Vector(-13.08, -20.32, 0), Vector(0, 0, 1), 1),
    Part.LineSegment(Vector(-2.26, -20.01, 0), Vector(-1.77, -19.52, 0)),
    Part.LineSegment(Vector(-1.77, -19.52, 0), Vector(1.42, -19.52, 0)),
    Part.LineSegment(Vector(1.42, -19.52, 0), Vector(2.07, -18.88, 0)),
    Part.LineSegment(Vector(2.07, -18.88, 0), Vector(4.35, -18.88, 0)),
    Part.LineSegment(Vector(4.35, -18.88, 0), Vector(4.73, -19.26, 0)),
    Part.LineSegment(Vector(4.73, -19.26, 0), Vector(4.73, -21.34, 0)),
    Part.LineSegment(Vector(4.73, -21.34, 0), Vector(4.35, -21.73, 0)),
    Part.LineSegment(Vector(4.35, -21.73, 0), Vector(-1.95, -21.73, 0)),
    Part.LineSegment(Vector(-1.95, -21.73, 0), Vector(-2.26, -21.41, 0)),
    Part.LineSegment(Vector(-2.26, -21.41, 0), Vector(-2.26, -20.01, 0)),
    Part.Circle(Vector(3.17, -20.32, 0), Vector(0, 0, 1), 1),
], False)
sketch11.addConstraint([
    Sketcher.Constraint("Coincident", 0, 2, 1, 1),
    Sketcher.Constraint("Coincident", 1, 2, 2, 1),
    Sketcher.Constraint("Coincident", 2, 2, 3, 1),
    Sketcher.Constraint("Coincident", 3, 2, 4, 1),
    Sketcher.Constraint("Coincident", 4, 2, 5, 1),
    Sketcher.Constraint("Coincident", 5, 2, 6, 1),
    Sketcher.Constraint("Coincident", 6, 2, 7, 1),
    Sketcher.Constraint("Coincident", 7, 2, 8, 1),
    Sketcher.Constraint("Coincident", 8, 2, 9, 1),
    Sketcher.Constraint("Coincident", 9, 2, 0, 1),
    Sketcher.Constraint("Coincident", 11, 2, 12, 1),
    Sketcher.Constraint("Coincident", 12, 2, 13, 1),
    Sketcher.Constraint("Coincident", 13, 2, 14, 1),
    Sketcher.Constraint("Coincident", 14, 2, 15, 1),
    Sketcher.Constraint("Coincident", 15, 2, 16, 1),
    Sketcher.Constraint("Coincident", 16, 2, 17, 1),
    Sketcher.Constraint("Coincident", 17, 2, 18, 1),
    Sketcher.Constraint("Coincident", 18, 2, 19, 1),
    Sketcher.Constraint("Coincident", 19, 2, 20, 1),
    Sketcher.Constraint("Coincident", 20, 2, 11, 1),
    Sketcher.Constraint("Coincident", 22, 2, 23, 1),
    Sketcher.Constraint("Coincident", 23, 2, 24, 1),
    Sketcher.Constraint("Coincident", 24, 2, 25, 1),
    Sketcher.Constraint("Coincident", 25, 2, 26, 1),
    Sketcher.Constraint("Coincident", 26, 2, 27, 1),
    Sketcher.Constraint("Coincident", 27, 2, 28, 1),
    Sketcher.Constraint("Coincident", 28, 2, 29, 1),
    Sketcher.Constraint("Coincident", 29, 2, 30, 1),
    Sketcher.Constraint("Coincident", 30, 2, 31, 1),
    Sketcher.Constraint("Coincident", 31, 2, 22, 1),
    Sketcher.Constraint("Horizontal", 0),
    Sketcher.Constraint("Vertical", 2),
    Sketcher.Constraint("Horizontal", 4),
    Sketcher.Constraint("Vertical", 6),
    Sketcher.Constraint("Horizontal", 8),
    Sketcher.Constraint("Horizontal", 11),
    Sketcher.Constraint("Vertical", 13),
    Sketcher.Constraint("Horizontal", 15),
    Sketcher.Constraint("Vertical", 17),
    Sketcher.Constraint("Horizontal", 19),
    Sketcher.Constraint("Horizontal", 23),
    Sketcher.Constraint("Horizontal", 25),
    Sketcher.Constraint("Vertical", 27),
    Sketcher.Constraint("Horizontal", 29),
    Sketcher.Constraint("Vertical", 31),
    Sketcher.Constraint("Equal", 10, 21),
    Sketcher.Constraint("Equal", 21, 32),
    Sketcher.Constraint("Perpendicular", 1, 3),
    Sketcher.Constraint("Perpendicular", 3, 5),
    Sketcher.Constraint("Perpendicular", 5, 7),
    Sketcher.Constraint("Perpendicular", 7, 9),
    Sketcher.Constraint("Parallel", 9, 12),
    Sketcher.Constraint("Perpendicular", 12, 14),
    Sketcher.Constraint("Perpendicular", 14, 16),
    Sketcher.Constraint("Perpendicular", 16, 18),
    Sketcher.Constraint("Perpendicular", 18, 20),
    Sketcher.Constraint("Perpendicular", 20, 22),
    Sketcher.Constraint("Parallel", 22, 24),
    Sketcher.Constraint("Perpendicular", 24, 26),
    Sketcher.Constraint("Perpendicular", 26, 28),
    Sketcher.Constraint("Perpendicular", 28, 30),
    Sketcher.Constraint("Horizontal", 10, 3, 21, 3),
    Sketcher.Constraint("Horizontal", 21, 3, 32, 3),
    Sketcher.Constraint("Horizontal", 9, 2, 11, 2),
    Sketcher.Constraint("Horizontal", 1, 2, 12, 2),
    Sketcher.Constraint("Horizontal", 2, 2, 13, 2),
    Sketcher.Constraint("Horizontal", 4, 2, 14, 2),
    Sketcher.Constraint("Horizontal", 20, 2, 22, 2),
    Sketcher.Constraint("Horizontal", 8, 2, 24, 2),
    Sketcher.Constraint("Horizontal", 6, 2, 26, 2),
    Sketcher.Constraint("Horizontal", 5, 2, 27, 2),
    Sketcher.Constraint("Horizontal", 15, 2, 28, 2),
    Sketcher.Constraint("Horizontal", 13, 2, 30, 2),
    Sketcher.Constraint("Horizontal", 12, 2, 31, 2),
    Sketcher.Constraint("Vertical", 4, 2, 7, 2),
    Sketcher.Constraint("Vertical", 15, 2, 18, 2),
    Sketcher.Constraint("Vertical", 25, 2, 28, 2),
    Sketcher.Constraint("Equal", 4, 15),
    Sketcher.Constraint("Equal", 0, 23),
    Sketcher.Constraint("Equal", 8, 25),
    Sketcher.Constraint("Diameter", 10, 2.0),
    Sketcher.Constraint("DistanceX", -1, 1, 10, 3, 8.75),
    Sketcher.Constraint("DistanceY", 10, 3, -1, 1, 20.32),
    Sketcher.Constraint("DistanceX", 21, 3, -1, 1, 13.08),
    Sketcher.Constraint("DistanceX", -1, 1, 32, 3, 3.17),
    Sketcher.Constraint("DistanceX", 4, 2, 4, 1, 6.30112),
    Sketcher.Constraint("DistanceX", 11, 1, 11, 2, 3.025959),
    Sketcher.Constraint("DistanceX", 19, 1, 19, 2, 2.273781),
    Sketcher.Constraint("DistanceX", 6, 2, 8, 2, 2.664799),
    Sketcher.Constraint("DistanceX", 11, 2, 7, 2, 15.701301),
    Sketcher.Constraint("DistanceX", 0, 1, 0, 2, 3.193563),
    Sketcher.Constraint("DistanceX", 8, 1, 8, 2, 2.283384),
    Sketcher.Constraint("DistanceY", 2, 2, 2, 1, 1.402847),
    Sketcher.Constraint("DistanceY", 6, 1, 6, 2, 2.086703),
    Sketcher.Constraint("DistanceY", 17, 1, 17, 2, 2.062283),
    Sketcher.Constraint("DistanceY", 0, 2, -1, 1, 19.522522),
    Sketcher.Constraint("DistanceX", -1, 1, 1, 2, 14.141359),
    Sketcher.Constraint("DistanceY", 3, 2, -1, 1, 21.72509),
    Sketcher.Constraint("DistanceX", -1, 1, 23, 2, 1.418938),
])
sketch11.setExpression("Constraints[80]", "Params.sketch11_diameter")
pad7 = body.newObject("PartDesign::Pad", "Pad006")
pad7.Profile = sketch11
pad7.setExpression("Length", "Params.pad7_length")
pad7.Reversed = True

sketch12 = body.newObject("Sketcher::SketchObject", "Sketch011")
sketch12.AttachmentSupport = (doc.getObject("XY_Plane"), [""])
sketch12.MapMode = "FlatFace"
sketch12.AttachmentOffset = App.Placement(Vector(0, 0, -0.8), App.Rotation())
sketch12.addGeometry([
    Part.LineSegment(Vector(17, -3, 0), Vector(11, -9, 0)),
    Part.LineSegment(Vector(11, -9, 0), Vector(5, -3, 0)),
    Part.LineSegment(Vector(5, -3, 0), Vector(11, 4, 0)),
    Part.LineSegment(Vector(11, 4, 0), Vector(17, -3, 0)),
], False)
sketch12.addConstraint([
    Sketcher.Constraint("Coincident", 0, 2, 1, 1),
    Sketcher.Constraint("Coincident", 1, 2, 2, 1),
    Sketcher.Constraint("Coincident", 2, 2, 3, 1),
    Sketcher.Constraint("Coincident", 3, 2, 0, 1),
    Sketcher.Constraint("Perpendicular", 0, 1),
    Sketcher.Constraint("Perpendicular", 1, 2),
    Sketcher.Constraint("Perpendicular", 2, 3),
    Sketcher.Constraint("Horizontal", 1, 2, 3, 2),
    Sketcher.Constraint("Vertical", 0, 2, 2, 2),
    Sketcher.Constraint("DistanceY", 0, 2, -1, 1, 8.786228),
    Sketcher.Constraint("DistanceX", 1, 2, 0, 2, 6.284811),
    Sketcher.Constraint("DistanceX", -1, 1, 0, 2, 10.881166),
])
pad8 = body.newObject("PartDesign::Pad", "Pad007")
pad8.Profile = sketch12
pad8.setExpression("Length", "Params.pad8_length")
pad8.Reversed = True

doc.recompute()
